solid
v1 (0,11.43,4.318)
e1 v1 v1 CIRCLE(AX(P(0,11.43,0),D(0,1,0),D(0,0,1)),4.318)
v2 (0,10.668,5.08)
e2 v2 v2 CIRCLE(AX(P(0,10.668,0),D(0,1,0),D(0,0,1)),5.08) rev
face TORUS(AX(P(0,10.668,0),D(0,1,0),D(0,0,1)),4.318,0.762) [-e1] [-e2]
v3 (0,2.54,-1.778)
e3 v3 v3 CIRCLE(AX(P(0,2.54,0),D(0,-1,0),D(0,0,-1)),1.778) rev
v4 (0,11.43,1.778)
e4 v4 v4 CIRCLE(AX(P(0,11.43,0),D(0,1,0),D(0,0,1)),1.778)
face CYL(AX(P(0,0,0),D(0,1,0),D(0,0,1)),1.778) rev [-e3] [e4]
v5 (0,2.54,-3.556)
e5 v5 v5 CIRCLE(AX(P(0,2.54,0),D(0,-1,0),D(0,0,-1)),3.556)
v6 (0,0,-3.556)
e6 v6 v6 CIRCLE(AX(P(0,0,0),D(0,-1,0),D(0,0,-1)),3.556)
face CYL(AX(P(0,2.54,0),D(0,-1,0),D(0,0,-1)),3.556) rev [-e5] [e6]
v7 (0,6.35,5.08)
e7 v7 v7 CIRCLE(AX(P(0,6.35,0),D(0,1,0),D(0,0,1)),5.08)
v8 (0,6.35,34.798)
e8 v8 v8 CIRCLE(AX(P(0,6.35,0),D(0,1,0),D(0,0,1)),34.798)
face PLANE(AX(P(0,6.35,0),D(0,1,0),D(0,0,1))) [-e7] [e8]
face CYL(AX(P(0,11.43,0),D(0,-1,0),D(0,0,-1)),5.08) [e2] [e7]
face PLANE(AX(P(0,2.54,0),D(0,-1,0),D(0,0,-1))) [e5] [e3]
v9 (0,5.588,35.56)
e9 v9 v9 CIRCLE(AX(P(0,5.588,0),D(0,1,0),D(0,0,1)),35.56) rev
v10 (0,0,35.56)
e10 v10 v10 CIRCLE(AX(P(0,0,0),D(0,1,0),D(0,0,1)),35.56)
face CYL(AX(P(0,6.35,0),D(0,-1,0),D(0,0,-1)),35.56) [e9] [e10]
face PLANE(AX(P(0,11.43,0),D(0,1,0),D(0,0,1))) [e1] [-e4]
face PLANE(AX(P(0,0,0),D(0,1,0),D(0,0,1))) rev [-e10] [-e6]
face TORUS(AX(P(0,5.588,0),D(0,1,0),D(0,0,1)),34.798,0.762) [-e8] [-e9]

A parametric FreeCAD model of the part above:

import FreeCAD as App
import Part
import Sketcher
from FreeCAD import Vector
Q = App.Units.Quantity


def edges_at(feature, points):
    """Names of the edges that pass closest to the given points."""
    edges = feature.Shape.Edges
    near = lambda p: min(range(len(edges)), key=lambda i: edges[i].distToShape(Part.Vertex(*p))[0])
    return sorted({f"Edge{near(p) + 1}" for p in points})

doc = App.newDocument("Part")
params = doc.addObject("Spreadsheet::Sheet", "Params")
for row, (alias, value) in enumerate([
    ("sketch1_diameter", "2.8 in"),
    ("pad1_length", "0.25 in"),
    ("sketch2_diameter", "0.4 in"),
    ("pad2_length", "0.2 in"),
    ("sketch3_diameter", "0.14 in"),
    ("sketch4_diameter", "0.28 in"),
    ("pocket2_length", "0.1 in"),
    ("fillet_radius", "0.03 in"),
    ("fillet2_radius", "0.03 in"),
], start=1):
    params.set(f"A{row}", alias)
    params.set(f"B{row}", "=" + value)
    params.setAlias(f"B{row}", alias)

body = doc.addObject("PartDesign::Body", "Body")

sketch1 = body.newObject("Sketcher::SketchObject", "Sketch")
sketch1.AttachmentSupport = (doc.getObject("XZ_Plane"), [""])
sketch1.MapMode = "FlatFace"
sketch1.addGeometry(Part.Circle(Vector(0, 0, 0), Vector(0, 0, 1), 35.56), False)
sketch1.addConstraint(Sketcher.Constraint("Coincident", 0, 3, -1, 1))
sketch1.addConstraint(Sketcher.Constraint("Diameter", 0, Q("2.8 in")))
sketch1.setExpression("Constraints[1]", "Params.sketch1_diameter")
pad1 = body.newObject("PartDesign::Pad", "Pad")
pad1.Profile = sketch1
pad1.setExpression("Length", "Params.pad1_length")
pad1.Reversed = True

sketch2 = body.newObject("Sketcher::SketchObject", "Sketch001")
sketch2.AttachmentSupport = (doc.getObject("XZ_Plane"), [""])
sketch2.MapMode = "FlatFace"
sketch2.AttachmentOffset = App.Placement(Vector(0, 0, -0.25 * 25.4), App.Rotation())
sketch2.addGeometry(Part.Circle(Vector(0, 0, 0), Vector(0, 0, 1), 5.08), False)
sketch2.addConstraint(Sketcher.Constraint("Coincident", 0, 3, -1, 1))
sketch2.addConstraint(Sketcher.Constraint("Diameter", 0, Q("0.4 in")))
sketch2.setExpression("Constraints[1]", "Params.sketch2_diameter")
pad2 = body.newObject("PartDesign::Pad", "Pad001")
pad2.Profile = sketch2
pad2.setExpression("Length", "Params.pad2_length")
pad2.Reversed = True

sketch3 = body.newObject("Sketcher::SketchObject", "Sketch002")
sketch3.AttachmentSupport = (doc.getObject("XZ_Plane"), [""])
sketch3.MapMode = "FlatFace"
sketch3.AttachmentOffset = App.Placement(Vector(0, 0, -0.45 * 25.4), App.Rotation())
sketch3.addGeometry(Part.Circle(Vector(0, 0, 0), Vector(0, 0, 1), 1.778), False)
sketch3.addConstraint(Sketcher.Constraint("Coincident", 0, 3, -1, 1))
sketch3.addConstraint(Sketcher.Constraint("Diameter", 0, Q("0.14 in")))
sketch3.setExpression("Constraints[1]", "Params.sketch3_diameter")
pocket1 = body.newObject("PartDesign::Pocket", "Pocket")
pocket1.Profile = sketch3
pocket1.Type = "ThroughAll"
pocket1.Reversed = True

sketch4 = body.newObject("Sketcher::SketchObject", "Sketch003")
sketch4.AttachmentSupport = (doc.getObject("XZ_Plane"), [""])
sketch4.MapMode = "FlatFace"
sketch4.addGeometry(Part.Circle(Vector(0, 0, 0), Vector(0, 0, 1), 3.556), False)
sketch4.addConstraint(Sketcher.Constraint("Coincident", 0, 3, -1, 1))
sketch4.addConstraint(Sketcher.Constraint("Diameter", 0, Q("0.28 in")))
sketch4.setExpression("Constraints[1]", "Params.sketch4_diameter")
pocket2 = body.newObject("PartDesign::Pocket", "Pocket001")
pocket2.Profile = sketch4
pocket2.setExpression("Length", "Params.pocket2_length")
doc.recompute()

fillet = body.newObject("PartDesign::Fillet", "Fillet")
fillet.Base = (pocket2, edges_at(pocket2, [(0, 11.43, -5.08)]))
fillet.setExpression("Radius", "Params.fillet_radius")
doc.recompute()

fillet2 = body.newObject("PartDesign::Fillet", "Fillet001")
fillet2.Base = (fillet, edges_at(fillet, [(0, 6.35, -35.56)]))
fillet2.setExpression("Radius", "Params.fillet2_radius")

doc.recompute()
